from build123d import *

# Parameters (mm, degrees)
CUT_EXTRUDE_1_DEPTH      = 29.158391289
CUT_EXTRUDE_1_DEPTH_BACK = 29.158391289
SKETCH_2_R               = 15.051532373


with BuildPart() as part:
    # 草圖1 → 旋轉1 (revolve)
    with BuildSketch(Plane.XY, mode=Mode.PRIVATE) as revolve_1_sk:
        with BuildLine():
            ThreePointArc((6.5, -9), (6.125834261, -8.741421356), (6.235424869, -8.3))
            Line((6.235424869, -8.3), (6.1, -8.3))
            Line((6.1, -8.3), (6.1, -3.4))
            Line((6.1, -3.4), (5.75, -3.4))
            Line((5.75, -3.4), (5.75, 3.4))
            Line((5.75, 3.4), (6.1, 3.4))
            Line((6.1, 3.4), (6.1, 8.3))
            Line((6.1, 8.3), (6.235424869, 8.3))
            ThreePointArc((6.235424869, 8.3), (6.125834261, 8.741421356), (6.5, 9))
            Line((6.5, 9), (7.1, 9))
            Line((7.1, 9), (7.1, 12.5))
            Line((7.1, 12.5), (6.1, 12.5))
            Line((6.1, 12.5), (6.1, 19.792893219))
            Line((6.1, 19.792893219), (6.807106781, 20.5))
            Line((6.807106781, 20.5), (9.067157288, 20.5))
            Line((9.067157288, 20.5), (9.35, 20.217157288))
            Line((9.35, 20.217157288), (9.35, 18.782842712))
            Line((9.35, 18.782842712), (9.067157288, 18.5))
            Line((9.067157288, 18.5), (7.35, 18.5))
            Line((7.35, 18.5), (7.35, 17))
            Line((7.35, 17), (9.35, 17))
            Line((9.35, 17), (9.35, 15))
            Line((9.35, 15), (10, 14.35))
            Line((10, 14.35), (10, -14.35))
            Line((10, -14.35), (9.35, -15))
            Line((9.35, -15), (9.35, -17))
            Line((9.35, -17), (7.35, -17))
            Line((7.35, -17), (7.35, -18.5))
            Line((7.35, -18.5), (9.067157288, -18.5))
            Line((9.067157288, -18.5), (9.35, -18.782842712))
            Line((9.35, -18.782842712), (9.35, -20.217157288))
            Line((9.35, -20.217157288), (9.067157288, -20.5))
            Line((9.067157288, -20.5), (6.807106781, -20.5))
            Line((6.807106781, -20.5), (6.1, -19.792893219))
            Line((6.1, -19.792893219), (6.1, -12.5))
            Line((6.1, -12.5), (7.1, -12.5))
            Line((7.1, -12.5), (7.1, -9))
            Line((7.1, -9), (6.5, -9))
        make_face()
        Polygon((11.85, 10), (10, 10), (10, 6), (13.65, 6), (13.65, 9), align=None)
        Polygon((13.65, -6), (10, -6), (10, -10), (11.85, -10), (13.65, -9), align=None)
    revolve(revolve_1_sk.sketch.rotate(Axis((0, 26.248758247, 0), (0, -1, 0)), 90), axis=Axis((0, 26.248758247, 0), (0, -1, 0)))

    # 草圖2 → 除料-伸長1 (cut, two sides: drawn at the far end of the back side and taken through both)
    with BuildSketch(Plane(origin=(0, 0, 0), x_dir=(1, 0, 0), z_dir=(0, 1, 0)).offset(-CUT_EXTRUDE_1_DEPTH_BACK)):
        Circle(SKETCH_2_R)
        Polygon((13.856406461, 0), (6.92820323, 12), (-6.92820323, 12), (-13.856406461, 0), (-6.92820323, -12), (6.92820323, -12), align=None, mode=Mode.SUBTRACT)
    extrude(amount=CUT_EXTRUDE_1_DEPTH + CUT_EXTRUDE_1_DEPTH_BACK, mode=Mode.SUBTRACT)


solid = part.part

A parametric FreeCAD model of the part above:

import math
import FreeCAD as App
import Part
import Sketcher
from FreeCAD import Vector
Q = App.Units.Quantity

doc = App.newDocument("Part")
body = doc.addObject("PartDesign::Body", "Body")

# Sketch on XY plane
sketch1 = body.newObject("Sketcher::SketchObject", "Sketch")
sketch1.AttachmentSupport = (doc.getObject("XY_Plane"), [""])
sketch1.MapMode = "FlatFace"
sketch1.addGeometry([
    Part.ArcOfCircle(Part.Circle(Vector(6.5, -8.6, 0), Vector(0, 0, 1), 0.4), math.radians(131), math.radians(270)),  # 0
    Part.LineSegment(Vector(6.5, -9, 0), Vector(7.1, -9, 0)),  # 1
    Part.LineSegment(Vector(7.1, -9, 0), Vector(7.1, -12.5, 0)),  # 2
    Part.LineSegment(Vector(7.1, -12.5, 0), Vector(6.1, -12.5, 0)),  # 3
    Part.LineSegment(Vector(6.1, -12.5, 0), Vector(6.1, -19.79, 0)),  # 4
    Part.LineSegment(Vector(6.1, -19.79, 0), Vector(6.81, -20.5, 0)),  # 5
    Part.LineSegment(Vector(6.81, -20.5, 0), Vector(9.07, -20.5, 0)),  # 6
    Part.LineSegment(Vector(9.07, -20.5, 0), Vector(9.35, -20.22, 0)),  # 7
    Part.LineSegment(Vector(9.35, -20.22, 0), Vector(9.35, -18.78, 0)),  # 8
    Part.LineSegment(Vector(9.35, -18.78, 0), Vector(9.07, -18.5, 0)),  # 9
    Part.LineSegment(Vector(9.07, -18.5, 0), Vector(7.35, -18.5, 0)),  # 10
    Part.LineSegment(Vector(7.35, -18.5, 0), Vector(7.35, -17, 0)),  # 11
    Part.LineSegment(Vector(7.35, -17, 0), Vector(9.35, -17, 0)),  # 12
    Part.LineSegment(Vector(9.35, -17, 0), Vector(9.35, -15, 0)),  # 13
    Part.LineSegment(Vector(9.35, -15, 0), Vector(10, -14.35, 0)),  # 14
    Part.LineSegment(Vector(10, -14.35, 0), Vector(10, -10, 0)),  # 15
    Part.LineSegment(Vector(10, -10, 0), Vector(11.85, -10, 0)),  # 16
    Part.LineSegment(Vector(11.85, -10, 0), Vector(13.65, -9, 0)),  # 17
    Part.LineSegment(Vector(13.65, -9, 0), Vector(13.65, -6, 0)),  # 18
    Part.LineSegment(Vector(13.65, -6, 0), Vector(10, -6, 0)),  # 19
    Part.LineSegment(Vector(10, -6, 0), Vector(10, 6, 0)),  # 20
    Part.LineSegment(Vector(10, 6, 0), Vector(13.65, 6, 0)),  # 21
    Part.LineSegment(Vector(13.65, 6, 0), Vector(13.65, 9, 0)),  # 22
    Part.LineSegment(Vector(13.65, 9, 0), Vector(11.85, 10, 0)),  # 23
    Part.LineSegment(Vector(11.85, 10, 0), Vector(10, 10, 0)),  # 24
    Part.LineSegment(Vector(10, 10, 0), Vector(10, 14.35, 0)),  # 25
    Part.LineSegment(Vector(10, 14.35, 0), Vector(9.35, 15, 0)),  # 26
    Part.LineSegment(Vector(9.35, 15, 0), Vector(9.35, 17, 0)),  # 27
    Part.LineSegment(Vector(9.35, 17, 0), Vector(7.35, 17, 0)),  # 28
    Part.LineSegment(Vector(7.35, 17, 0), Vector(7.35, 18.5, 0)),  # 29
    Part.LineSegment(Vector(7.35, 18.5, 0), Vector(9.07, 18.5, 0)),  # 30
    Part.LineSegment(Vector(9.07, 18.5, 0), Vector(9.35, 18.78, 0)),  # 31
    Part.LineSegment(Vector(9.35, 18.78, 0), Vector(9.35, 20.22, 0)),  # 32
    Part.LineSegment(Vector(9.35, 20.22, 0), Vector(9.07, 20.5, 0)),  # 33
    Part.LineSegment(Vector(9.07, 20.5, 0), Vector(6.81, 20.5, 0)),  # 34
    Part.LineSegment(Vector(6.81, 20.5, 0), Vector(6.1, 19.79, 0)),  # 35
    Part.LineSegment(Vector(6.1, 19.79, 0), Vector(6.1, 12.5, 0)),  # 36
    Part.LineSegment(Vector(6.1, 12.5, 0), Vector(7.1, 12.5, 0)),  # 37
    Part.LineSegment(Vector(7.1, 12.5, 0), Vector(7.1, 9, 0)),  # 38
    Part.LineSegment(Vector(7.1, 9, 0), Vector(6.5, 9, 0)),  # 39
    Part.ArcOfCircle(Part.Circle(Vector(6.5, 8.6, 0), Vector(0, 0, 1), 0.4), math.radians(90), math.radians(229)),  # 40
    Part.LineSegment(Vector(6.24, 8.3, 0), Vector(6.1, 8.3, 0)),  # 41
    Part.LineSegment(Vector(6.1, 8.3, 0), Vector(6.1, 3.4, 0)),  # 42
    Part.LineSegment(Vector(6.1, 3.4, 0), Vector(5.75, 3.4, 0)),  # 43
    Part.LineSegment(Vector(5.75, 3.4, 0), Vector(5.75, -3.4, 0)),  # 44
    Part.LineSegment(Vector(5.75, -3.4, 0), Vector(6.1, -3.4, 0)),  # 45
    Part.LineSegment(Vector(6.1, -3.4, 0), Vector(6.1, -8.3, 0)),  # 46
    Part.LineSegment(Vector(6.1, -8.3, 0), Vector(6.24, -8.3, 0)),  # 47
], False)
sketch1.addConstraint([
    Sketcher.Constraint("Tangent", 0, 2, 1, 1),
    Sketcher.Constraint("Coincident", 1, 2, 2, 1),
    Sketcher.Constraint("Coincident", 2, 2, 3, 1),
    Sketcher.Constraint("Coincident", 3, 2, 4, 1),
    Sketcher.Constraint("Coincident", 4, 2, 5, 1),
    Sketcher.Constraint("Coincident", 5, 2, 6, 1),
    Sketcher.Constraint("Coincident", 6, 2, 7, 1),
    Sketcher.Constraint("Coincident", 7, 2, 8, 1),
    Sketcher.Constraint("Coincident", 8, 2, 9, 1),
    Sketcher.Constraint("Coincident", 9, 2, 10, 1),
    Sketcher.Constraint("Coincident", 10, 2, 11, 1),
    Sketcher.Constraint("Coincident", 11, 2, 12, 1),
    Sketcher.Constraint("Coincident", 12, 2, 13, 1),
    Sketcher.Constraint("Coincident", 13, 2, 14, 1),
    Sketcher.Constraint("Coincident", 14, 2, 15, 1),
    Sketcher.Constraint("Coincident", 15, 2, 16, 1),
    Sketcher.Constraint("Coincident", 16, 2, 17, 1),
    Sketcher.Constraint("Coincident", 17, 2, 18, 1),
    Sketcher.Constraint("Coincident", 18, 2, 19, 1),
    Sketcher.Constraint("Coincident", 19, 2, 20, 1),
    Sketcher.Constraint("Coincident", 20, 2, 21, 1),
    Sketcher.Constraint("Coincident", 21, 2, 22, 1),
    Sketcher.Constraint("Coincident", 22, 2, 23, 1),
    Sketcher.Constraint("Coincident", 23, 2, 24, 1),
    Sketcher.Constraint("Coincident", 24, 2, 25, 1),
    Sketcher.Constraint("Coincident", 25, 2, 26, 1),
    Sketcher.Constraint("Coincident", 26, 2, 27, 1),
    Sketcher.Constraint("Coincident", 27, 2, 28, 1),
    Sketcher.Constraint("Coincident", 28, 2, 29, 1),
    Sketcher.Constraint("Coincident", 29, 2, 30, 1),
    Sketcher.Constraint("Coincident", 30, 2, 31, 1),
    Sketcher.Constraint("Coincident", 31, 2, 32, 1),
    Sketcher.Constraint("Coincident", 32, 2, 33, 1),
    Sketcher.Constraint("Coincident", 33, 2, 34, 1),
    Sketcher.Constraint("Coincident", 34, 2, 35, 1),
    Sketcher.Constraint("Coincident", 35, 2, 36, 1),
    Sketcher.Constraint("Coincident", 36, 2, 37, 1),
    Sketcher.Constraint("Coincident", 37, 2, 38, 1),
    Sketcher.Constraint("Coincident", 38, 2, 39, 1),
    Sketcher.Constraint("Tangent", 39, 2, 40, 1),
    Sketcher.Constraint("Coincident", 40, 2, 41, 1),
    Sketcher.Constraint("Coincident", 41, 2, 42, 1),
    Sketcher.Constraint("Coincident", 42, 2, 43, 1),
    Sketcher.Constraint("Coincident", 43, 2, 44, 1),
    Sketcher.Constraint("Coincident", 44, 2, 45, 1),
    Sketcher.Constraint("Coincident", 45, 2, 46, 1),
    Sketcher.Constraint("Coincident", 46, 2, 47, 1),
    Sketcher.Constraint("Coincident", 47, 2, 0, 1),
    Sketcher.Constraint("Horizontal", 1),
    Sketcher.Constraint("Vertical", 2),
    Sketcher.Constraint("Horizontal", 3),
    Sketcher.Constraint("Vertical", 4),
    Sketcher.Constraint("Horizontal", 6),
    Sketcher.Constraint("Vertical", 8),
    Sketcher.Constraint("Horizontal", 10),
    Sketcher.Constraint("Vertical", 11),
    Sketcher.Constraint("Horizontal", 12),
    Sketcher.Constraint("Vertical", 13),
    Sketcher.Constraint("Vertical", 15),
    Sketcher.Constraint("Horizontal", 16),
    Sketcher.Constraint("Vertical", 18),
    Sketcher.Constraint("Horizontal", 19),
    Sketcher.Constraint("Vertical", 20),
    Sketcher.Constraint("Horizontal", 21),
    Sketcher.Constraint("Vertical", 22),
    Sketcher.Constraint("Horizontal", 24),
    Sketcher.Constraint("Vertical", 25),
    Sketcher.Constraint("Vertical", 27),
    Sketcher.Constraint("Horizontal", 28),
    Sketcher.Constraint("Vertical", 29),
    Sketcher.Constraint("Horizontal", 30),
    Sketcher.Constraint("Vertical", 32),
    Sketcher.Constraint("Horizontal", 34),
    Sketcher.Constraint("Vertical", 36),
    Sketcher.Constraint("Horizontal", 37),
    Sketcher.Constraint("Vertical", 38),
    Sketcher.Constraint("Horizontal", 39),
    Sketcher.Constraint("Horizontal", 41),
    Sketcher.Constraint("Vertical", 42),
    Sketcher.Constraint("Horizontal", 43),
    Sketcher.Constraint("Vertical", 44),
    Sketcher.Constraint("Horizontal", 45),
    Sketcher.Constraint("Vertical", 46),
    Sketcher.Constraint("Horizontal", 47),
    Sketcher.Constraint("Equal", 0, 40),
    Sketcher.Constraint("Symmetric", 0, 3, 40, 3, -1),
    Sketcher.Constraint("Symmetric", 18, 2, 21, 2, -1),
    Sketcher.Constraint("Symmetric", 16, 2, 23, 2, -1),
    Sketcher.Constraint("Symmetric", 14, 2, 25, 2, -1),
    Sketcher.Constraint("Symmetric", 13, 2, 26, 2, -1),
    Sketcher.Constraint("Symmetric", 11, 2, 28, 2, -1),
    Sketcher.Constraint("Symmetric", 9, 2, 30, 2, -1),
    Sketcher.Constraint("Symmetric", 8, 2, 31, 2, -1),
    Sketcher.Constraint("Symmetric", 6, 2, 33, 2, -1),
    Sketcher.Constraint("Symmetric", 4, 2, 35, 2, -1),
    Sketcher.Constraint("Symmetric", 2, 2, 37, 2, -1),
    Sketcher.Constraint("Symmetric", 42, 2, 45, 2, -1),
    Sketcher.Constraint("Perpendicular", 5, 7),
    Sketcher.Constraint("Perpendicular", 7, 9),
    Sketcher.Constraint("Perpendicular", 9, 14),
    Sketcher.Constraint("Perpendicular", 14, 26),
    Sketcher.Constraint("Perpendicular", 31, 33),
    Sketcher.Constraint("Perpendicular", 33, 35),
    Sketcher.Constraint("Horizontal", 1, 2, 17, 2),
    Sketcher.Constraint("Horizontal", 22, 2, 38, 2),
    Sketcher.Constraint("Vertical", 6, 2, 9, 2),
    Sketcher.Constraint("Vertical", 8, 2, 12, 2),
    Sketcher.Constraint("Vertical", 15, 2, 19, 2),
    Sketcher.Constraint("Vertical", 36, 2, 41, 2),
    Sketcher.Constraint("Vertical", 40, 2, 47, 2),
    Sketcher.Constraint("Equal", 28, 13),
    Sketcher.Constraint("Radius", 0, Q("0.4 mm")),
    Sketcher.Constraint("DistanceX", 3, 2, 3, 1, Q("1 mm")),
    Sketcher.Constraint("DistanceX", 12, 1, 12, 2, Q("2 mm")),
    Sketcher.Constraint("DistanceY", 18, 1, 18, 2, Q("3 mm")),
    Sketcher.Constraint("DistanceY", 20, 1, 20, 2, Q("12 mm")),
    Sketcher.Constraint("Distance", 5, Q("1 mm")),
    Sketcher.Constraint("DistanceX", 1, 1, 1, 2, Q("0.6 mm")),
    Sketcher.Constraint("DistanceY", 2, 2, 2, 1, Q("3.5 mm")),
    Sketcher.Constraint("DistanceY", 11, 1, 11, 2, Q("1.5 mm")),
    Sketcher.Constraint("DistanceY", 42, 2, 42, 1, Q("4.9 mm")),
    Sketcher.Constraint("DistanceY", 44, 2, 44, 1, Q("6.8 mm")),
    Sketcher.Constraint("DistanceY", 11, 2, -1, 1, Q("17 mm")),
    Sketcher.Constraint("DistanceX", -1, 1, 14, 2, Q("10 mm")),
    Sketcher.Constraint("DistanceY", 15, 2, -1, 1, Q("10 mm")),
    Sketcher.Constraint("DistanceY", 5, 2, 2, 2, Q("8 mm")),
    Sketcher.Constraint("Distance", 7, Q("0.4 mm")),
    Sketcher.Constraint("DistanceX", 16, 1, 16, 2, Q("1.85 mm")),
    Sketcher.Constraint("DistanceX", 19, 2, 19, 1, Q("3.65 mm")),
    Sketcher.Constraint("DistanceX", 43, 2, 43, 1, Q("0.35 mm")),
    Sketcher.Constraint("DistanceY", 15, 1, 15, 2, Q("4.35 mm")),
    Sketcher.Constraint("DistanceX", -1, 1, 0, 3, Q("6.5 mm")),
])
revolution = body.newObject("PartDesign::Revolution", "Revolution")
revolution.Profile = sketch1
revolution.ReferenceAxis = (sketch1, ["V_Axis"])
revolution.Angle = 360

# Sketch on XZ plane
sketch2 = body.newObject("Sketcher::SketchObject", "Sketch001")
sketch2.AttachmentSupport = (doc.getObject("XZ_Plane"), [""])
sketch2.MapMode = "FlatFace"
sketch2.addGeometry([
    Part.Circle(Vector(0, 0, 0), Vector(0, 0, 1), 15),  # 0
    Part.LineSegment(Vector(7, -12, 0), Vector(14, 0, 0)),  # 1
    Part.LineSegment(Vector(14, 0, 0), Vector(7, 12, 0)),  # 2
    Part.LineSegment(Vector(7, 12, 0), Vector(-7, 12, 0)),  # 3
    Part.LineSegment(Vector(-7, 12, 0), Vector(-14, 0, 0)),  # 4
    Part.LineSegment(Vector(-14, 0, 0), Vector(-7, -12, 0)),  # 5
    Part.LineSegment(Vector(-7, -12, 0), Vector(7, -12, 0)),  # 6
], False)
sketch2.addConstraint([
    Sketcher.Constraint("Coincident", 1, 2, 2, 1),
    Sketcher.Constraint("Coincident", 2, 2, 3, 1),
    Sketcher.Constraint("Coincident", 3, 2, 4, 1),
    Sketcher.Constraint("Coincident", 4, 2, 5, 1),
    Sketcher.Constraint("Coincident", 5, 2, 6, 1),
    Sketcher.Constraint("Coincident", 6, 2, 1, 1),
    Sketcher.Constraint("Horizontal", 3),
    Sketcher.Constraint("Horizontal", 6),
    Sketcher.Constraint("Coincident", 0, 3, -1, 1),
    Sketcher.Constraint("Symmetric", 1, 2, 4, 2, -1, 1),
    Sketcher.Constraint("Symmetric", 2, 2, 5, 2, -1, 1),
    Sketcher.Constraint("PointOnObject", 1, 2, -1),
    Sketcher.Constraint("Parallel", 1, 4),
    Sketcher.Constraint("Vertical", 3, 2, 5, 2),
    Sketcher.Constraint("Angle", 1, Q("60 deg")),
    Sketcher.Constraint("DistanceY", -1, 1, 2, 2, Q("12 mm")),
    Sketcher.Constraint("Diameter", 0, Q("30.103065 mm")),
    Sketcher.Constraint("DistanceX", 3, 2, 3, 1, Q("13.856406 mm")),
])
pocket1 = body.newObject("PartDesign::Pocket", "Pocket")
pocket1.Profile = sketch2
pocket1.Type = "ThroughAll"
pocket1.Midplane = True

doc.recompute()
